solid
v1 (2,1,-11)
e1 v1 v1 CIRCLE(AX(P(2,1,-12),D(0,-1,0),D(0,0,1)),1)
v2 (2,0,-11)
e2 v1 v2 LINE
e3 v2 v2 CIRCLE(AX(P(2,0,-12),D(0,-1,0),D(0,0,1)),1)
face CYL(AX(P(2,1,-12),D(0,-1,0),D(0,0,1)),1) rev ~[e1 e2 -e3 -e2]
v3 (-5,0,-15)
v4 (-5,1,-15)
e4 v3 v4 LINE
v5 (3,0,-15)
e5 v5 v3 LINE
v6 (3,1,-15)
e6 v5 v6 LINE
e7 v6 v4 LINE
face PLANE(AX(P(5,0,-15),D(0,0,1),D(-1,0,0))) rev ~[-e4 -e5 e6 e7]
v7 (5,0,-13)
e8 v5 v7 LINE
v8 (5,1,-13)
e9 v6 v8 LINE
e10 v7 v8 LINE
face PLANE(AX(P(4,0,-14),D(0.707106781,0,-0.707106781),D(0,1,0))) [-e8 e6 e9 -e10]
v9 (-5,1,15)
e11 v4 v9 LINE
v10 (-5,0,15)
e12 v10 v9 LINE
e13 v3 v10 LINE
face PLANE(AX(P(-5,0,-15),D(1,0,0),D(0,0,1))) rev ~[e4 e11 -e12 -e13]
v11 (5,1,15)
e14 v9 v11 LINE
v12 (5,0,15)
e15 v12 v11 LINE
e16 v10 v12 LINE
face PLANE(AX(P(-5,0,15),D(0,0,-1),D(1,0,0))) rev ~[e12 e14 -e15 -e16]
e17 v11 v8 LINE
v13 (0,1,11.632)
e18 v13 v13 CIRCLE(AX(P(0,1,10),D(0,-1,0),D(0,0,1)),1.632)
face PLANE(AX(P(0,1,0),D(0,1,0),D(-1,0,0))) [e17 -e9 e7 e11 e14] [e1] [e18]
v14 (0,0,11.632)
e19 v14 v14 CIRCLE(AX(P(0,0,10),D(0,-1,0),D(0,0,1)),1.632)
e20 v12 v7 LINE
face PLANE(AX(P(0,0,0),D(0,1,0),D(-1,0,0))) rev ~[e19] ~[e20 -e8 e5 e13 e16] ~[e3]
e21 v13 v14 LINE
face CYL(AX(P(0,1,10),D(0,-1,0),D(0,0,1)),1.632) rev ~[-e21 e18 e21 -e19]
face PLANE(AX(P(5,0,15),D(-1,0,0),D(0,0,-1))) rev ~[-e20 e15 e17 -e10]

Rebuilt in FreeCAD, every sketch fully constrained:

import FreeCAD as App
import Part
import Sketcher

V = App.Vector
Q = App.Units.Quantity


def edges_at(feature, points):
    """Names of the edges that pass closest to the given points."""
    edges = feature.Shape.Edges
    near = lambda p: min(range(len(edges)), key=lambda i: edges[i].distToShape(Part.Vertex(*p))[0])
    return sorted({f"Edge{near(p) + 1}" for p in points})


def add_polygon(sketch, points):
    """Adds a closed chain of lines whose ends are joined by coincident constraints."""
    first, n = sketch.GeometryCount, len(points)
    for a, b in zip(points, points[1:] + points[:1]):
        sketch.addGeometry(Part.LineSegment(App.Vector(*a, 0), App.Vector(*b, 0)), False)
    for i in range(n):
        sketch.addConstraint(Sketcher.Constraint("Coincident", first + i, 2, first + (i + 1) % n, 1))

doc = App.newDocument("Part")
body = doc.addObject("PartDesign::Body", "Body")

sketch1 = body.newObject("Sketcher::SketchObject", "Sketch")
sketch1.AttachmentSupport = (doc.getObject("XZ_Plane"), [""])
sketch1.MapMode = "FlatFace"
add_polygon(sketch1, [(-5, -15), (-5, 15), (5, 15), (5, -15)])
sketch1.addConstraint([
    Sketcher.Constraint("Vertical", 0),
    Sketcher.Constraint("Horizontal", 1),
    Sketcher.Constraint("Vertical", 2),
    Sketcher.Constraint("Horizontal", 3),
    Sketcher.Constraint("Symmetric", 0, 2, 2, 2, -1, 1),
    Sketcher.Constraint("DistanceX", 1, 1, 1, 2, Q("10 mm")),
    Sketcher.Constraint("DistanceY", 0, 1, 0, 2, Q("30 mm")),
])
pad1 = body.newObject("PartDesign::Pad", "Pad")
pad1.Profile = sketch1
pad1.Length = 1
pad1.Reversed = True

sketch2 = body.newObject("Sketcher::SketchObject", "Sketch001")
sketch2.AttachmentSupport = (doc.getObject("XZ_Plane"), [""])
sketch2.MapMode = "FlatFace"
sketch2.AttachmentOffset = App.Placement(V(0, 0, -1), App.Rotation())
sketch2.addGeometry(Part.Circle(V(0, 10, 0), V(0, 0, 1), 1.632), False)
sketch2.addConstraint([
    Sketcher.Constraint("PointOnObject", 0, 3, -2),
    Sketcher.Constraint("Diameter", 0, Q("3.264 mm")),
    Sketcher.Constraint("DistanceY", -1, 1, 0, 3, Q("10 mm")),
])
doc.recompute()
hole = body.newObject("PartDesign::Hole", "Hole")
hole.Profile = sketch2
hole.ThreadType = "None"
hole.Diameter = 3.264
hole.DepthType = "Dimension"
hole.Depth = 4
hole.DrillPoint = "Flat"
hole.Reversed = True
doc.recompute()

chamfer = body.newObject("PartDesign::Chamfer", "Chamfer")
chamfer.Base = (hole, edges_at(hole, [(5, 0.5, -15)]))
chamfer.Size = 2

sketch3 = body.newObject("Sketcher::SketchObject", "Sketch002")
sketch3.AttachmentSupport = (doc.getObject("XZ_Plane"), [""])
sketch3.MapMode = "FlatFace"
sketch3.AttachmentOffset = App.Placement(V(0, 0, -1), App.Rotation())
sketch3.addGeometry(Part.Circle(V(2, -12, 0), V(0, 0, 1), 1), False)
sketch3.addConstraint([
    Sketcher.Constraint("Diameter", 0, Q("2 mm")),
    Sketcher.Constraint("DistanceX", -1, 1, 0, 3, Q("2 mm")),
    Sketcher.Constraint("DistanceY", 0, 3, -1, 1, Q("12 mm")),
])
doc.recompute()
hole2 = body.newObject("PartDesign::Hole", "Hole001")
hole2.Profile = sketch3
hole2.ThreadType = "None"
hole2.Diameter = 2
hole2.DepthType = "ThroughAll"
hole2.Reversed = True

doc.recompute()
